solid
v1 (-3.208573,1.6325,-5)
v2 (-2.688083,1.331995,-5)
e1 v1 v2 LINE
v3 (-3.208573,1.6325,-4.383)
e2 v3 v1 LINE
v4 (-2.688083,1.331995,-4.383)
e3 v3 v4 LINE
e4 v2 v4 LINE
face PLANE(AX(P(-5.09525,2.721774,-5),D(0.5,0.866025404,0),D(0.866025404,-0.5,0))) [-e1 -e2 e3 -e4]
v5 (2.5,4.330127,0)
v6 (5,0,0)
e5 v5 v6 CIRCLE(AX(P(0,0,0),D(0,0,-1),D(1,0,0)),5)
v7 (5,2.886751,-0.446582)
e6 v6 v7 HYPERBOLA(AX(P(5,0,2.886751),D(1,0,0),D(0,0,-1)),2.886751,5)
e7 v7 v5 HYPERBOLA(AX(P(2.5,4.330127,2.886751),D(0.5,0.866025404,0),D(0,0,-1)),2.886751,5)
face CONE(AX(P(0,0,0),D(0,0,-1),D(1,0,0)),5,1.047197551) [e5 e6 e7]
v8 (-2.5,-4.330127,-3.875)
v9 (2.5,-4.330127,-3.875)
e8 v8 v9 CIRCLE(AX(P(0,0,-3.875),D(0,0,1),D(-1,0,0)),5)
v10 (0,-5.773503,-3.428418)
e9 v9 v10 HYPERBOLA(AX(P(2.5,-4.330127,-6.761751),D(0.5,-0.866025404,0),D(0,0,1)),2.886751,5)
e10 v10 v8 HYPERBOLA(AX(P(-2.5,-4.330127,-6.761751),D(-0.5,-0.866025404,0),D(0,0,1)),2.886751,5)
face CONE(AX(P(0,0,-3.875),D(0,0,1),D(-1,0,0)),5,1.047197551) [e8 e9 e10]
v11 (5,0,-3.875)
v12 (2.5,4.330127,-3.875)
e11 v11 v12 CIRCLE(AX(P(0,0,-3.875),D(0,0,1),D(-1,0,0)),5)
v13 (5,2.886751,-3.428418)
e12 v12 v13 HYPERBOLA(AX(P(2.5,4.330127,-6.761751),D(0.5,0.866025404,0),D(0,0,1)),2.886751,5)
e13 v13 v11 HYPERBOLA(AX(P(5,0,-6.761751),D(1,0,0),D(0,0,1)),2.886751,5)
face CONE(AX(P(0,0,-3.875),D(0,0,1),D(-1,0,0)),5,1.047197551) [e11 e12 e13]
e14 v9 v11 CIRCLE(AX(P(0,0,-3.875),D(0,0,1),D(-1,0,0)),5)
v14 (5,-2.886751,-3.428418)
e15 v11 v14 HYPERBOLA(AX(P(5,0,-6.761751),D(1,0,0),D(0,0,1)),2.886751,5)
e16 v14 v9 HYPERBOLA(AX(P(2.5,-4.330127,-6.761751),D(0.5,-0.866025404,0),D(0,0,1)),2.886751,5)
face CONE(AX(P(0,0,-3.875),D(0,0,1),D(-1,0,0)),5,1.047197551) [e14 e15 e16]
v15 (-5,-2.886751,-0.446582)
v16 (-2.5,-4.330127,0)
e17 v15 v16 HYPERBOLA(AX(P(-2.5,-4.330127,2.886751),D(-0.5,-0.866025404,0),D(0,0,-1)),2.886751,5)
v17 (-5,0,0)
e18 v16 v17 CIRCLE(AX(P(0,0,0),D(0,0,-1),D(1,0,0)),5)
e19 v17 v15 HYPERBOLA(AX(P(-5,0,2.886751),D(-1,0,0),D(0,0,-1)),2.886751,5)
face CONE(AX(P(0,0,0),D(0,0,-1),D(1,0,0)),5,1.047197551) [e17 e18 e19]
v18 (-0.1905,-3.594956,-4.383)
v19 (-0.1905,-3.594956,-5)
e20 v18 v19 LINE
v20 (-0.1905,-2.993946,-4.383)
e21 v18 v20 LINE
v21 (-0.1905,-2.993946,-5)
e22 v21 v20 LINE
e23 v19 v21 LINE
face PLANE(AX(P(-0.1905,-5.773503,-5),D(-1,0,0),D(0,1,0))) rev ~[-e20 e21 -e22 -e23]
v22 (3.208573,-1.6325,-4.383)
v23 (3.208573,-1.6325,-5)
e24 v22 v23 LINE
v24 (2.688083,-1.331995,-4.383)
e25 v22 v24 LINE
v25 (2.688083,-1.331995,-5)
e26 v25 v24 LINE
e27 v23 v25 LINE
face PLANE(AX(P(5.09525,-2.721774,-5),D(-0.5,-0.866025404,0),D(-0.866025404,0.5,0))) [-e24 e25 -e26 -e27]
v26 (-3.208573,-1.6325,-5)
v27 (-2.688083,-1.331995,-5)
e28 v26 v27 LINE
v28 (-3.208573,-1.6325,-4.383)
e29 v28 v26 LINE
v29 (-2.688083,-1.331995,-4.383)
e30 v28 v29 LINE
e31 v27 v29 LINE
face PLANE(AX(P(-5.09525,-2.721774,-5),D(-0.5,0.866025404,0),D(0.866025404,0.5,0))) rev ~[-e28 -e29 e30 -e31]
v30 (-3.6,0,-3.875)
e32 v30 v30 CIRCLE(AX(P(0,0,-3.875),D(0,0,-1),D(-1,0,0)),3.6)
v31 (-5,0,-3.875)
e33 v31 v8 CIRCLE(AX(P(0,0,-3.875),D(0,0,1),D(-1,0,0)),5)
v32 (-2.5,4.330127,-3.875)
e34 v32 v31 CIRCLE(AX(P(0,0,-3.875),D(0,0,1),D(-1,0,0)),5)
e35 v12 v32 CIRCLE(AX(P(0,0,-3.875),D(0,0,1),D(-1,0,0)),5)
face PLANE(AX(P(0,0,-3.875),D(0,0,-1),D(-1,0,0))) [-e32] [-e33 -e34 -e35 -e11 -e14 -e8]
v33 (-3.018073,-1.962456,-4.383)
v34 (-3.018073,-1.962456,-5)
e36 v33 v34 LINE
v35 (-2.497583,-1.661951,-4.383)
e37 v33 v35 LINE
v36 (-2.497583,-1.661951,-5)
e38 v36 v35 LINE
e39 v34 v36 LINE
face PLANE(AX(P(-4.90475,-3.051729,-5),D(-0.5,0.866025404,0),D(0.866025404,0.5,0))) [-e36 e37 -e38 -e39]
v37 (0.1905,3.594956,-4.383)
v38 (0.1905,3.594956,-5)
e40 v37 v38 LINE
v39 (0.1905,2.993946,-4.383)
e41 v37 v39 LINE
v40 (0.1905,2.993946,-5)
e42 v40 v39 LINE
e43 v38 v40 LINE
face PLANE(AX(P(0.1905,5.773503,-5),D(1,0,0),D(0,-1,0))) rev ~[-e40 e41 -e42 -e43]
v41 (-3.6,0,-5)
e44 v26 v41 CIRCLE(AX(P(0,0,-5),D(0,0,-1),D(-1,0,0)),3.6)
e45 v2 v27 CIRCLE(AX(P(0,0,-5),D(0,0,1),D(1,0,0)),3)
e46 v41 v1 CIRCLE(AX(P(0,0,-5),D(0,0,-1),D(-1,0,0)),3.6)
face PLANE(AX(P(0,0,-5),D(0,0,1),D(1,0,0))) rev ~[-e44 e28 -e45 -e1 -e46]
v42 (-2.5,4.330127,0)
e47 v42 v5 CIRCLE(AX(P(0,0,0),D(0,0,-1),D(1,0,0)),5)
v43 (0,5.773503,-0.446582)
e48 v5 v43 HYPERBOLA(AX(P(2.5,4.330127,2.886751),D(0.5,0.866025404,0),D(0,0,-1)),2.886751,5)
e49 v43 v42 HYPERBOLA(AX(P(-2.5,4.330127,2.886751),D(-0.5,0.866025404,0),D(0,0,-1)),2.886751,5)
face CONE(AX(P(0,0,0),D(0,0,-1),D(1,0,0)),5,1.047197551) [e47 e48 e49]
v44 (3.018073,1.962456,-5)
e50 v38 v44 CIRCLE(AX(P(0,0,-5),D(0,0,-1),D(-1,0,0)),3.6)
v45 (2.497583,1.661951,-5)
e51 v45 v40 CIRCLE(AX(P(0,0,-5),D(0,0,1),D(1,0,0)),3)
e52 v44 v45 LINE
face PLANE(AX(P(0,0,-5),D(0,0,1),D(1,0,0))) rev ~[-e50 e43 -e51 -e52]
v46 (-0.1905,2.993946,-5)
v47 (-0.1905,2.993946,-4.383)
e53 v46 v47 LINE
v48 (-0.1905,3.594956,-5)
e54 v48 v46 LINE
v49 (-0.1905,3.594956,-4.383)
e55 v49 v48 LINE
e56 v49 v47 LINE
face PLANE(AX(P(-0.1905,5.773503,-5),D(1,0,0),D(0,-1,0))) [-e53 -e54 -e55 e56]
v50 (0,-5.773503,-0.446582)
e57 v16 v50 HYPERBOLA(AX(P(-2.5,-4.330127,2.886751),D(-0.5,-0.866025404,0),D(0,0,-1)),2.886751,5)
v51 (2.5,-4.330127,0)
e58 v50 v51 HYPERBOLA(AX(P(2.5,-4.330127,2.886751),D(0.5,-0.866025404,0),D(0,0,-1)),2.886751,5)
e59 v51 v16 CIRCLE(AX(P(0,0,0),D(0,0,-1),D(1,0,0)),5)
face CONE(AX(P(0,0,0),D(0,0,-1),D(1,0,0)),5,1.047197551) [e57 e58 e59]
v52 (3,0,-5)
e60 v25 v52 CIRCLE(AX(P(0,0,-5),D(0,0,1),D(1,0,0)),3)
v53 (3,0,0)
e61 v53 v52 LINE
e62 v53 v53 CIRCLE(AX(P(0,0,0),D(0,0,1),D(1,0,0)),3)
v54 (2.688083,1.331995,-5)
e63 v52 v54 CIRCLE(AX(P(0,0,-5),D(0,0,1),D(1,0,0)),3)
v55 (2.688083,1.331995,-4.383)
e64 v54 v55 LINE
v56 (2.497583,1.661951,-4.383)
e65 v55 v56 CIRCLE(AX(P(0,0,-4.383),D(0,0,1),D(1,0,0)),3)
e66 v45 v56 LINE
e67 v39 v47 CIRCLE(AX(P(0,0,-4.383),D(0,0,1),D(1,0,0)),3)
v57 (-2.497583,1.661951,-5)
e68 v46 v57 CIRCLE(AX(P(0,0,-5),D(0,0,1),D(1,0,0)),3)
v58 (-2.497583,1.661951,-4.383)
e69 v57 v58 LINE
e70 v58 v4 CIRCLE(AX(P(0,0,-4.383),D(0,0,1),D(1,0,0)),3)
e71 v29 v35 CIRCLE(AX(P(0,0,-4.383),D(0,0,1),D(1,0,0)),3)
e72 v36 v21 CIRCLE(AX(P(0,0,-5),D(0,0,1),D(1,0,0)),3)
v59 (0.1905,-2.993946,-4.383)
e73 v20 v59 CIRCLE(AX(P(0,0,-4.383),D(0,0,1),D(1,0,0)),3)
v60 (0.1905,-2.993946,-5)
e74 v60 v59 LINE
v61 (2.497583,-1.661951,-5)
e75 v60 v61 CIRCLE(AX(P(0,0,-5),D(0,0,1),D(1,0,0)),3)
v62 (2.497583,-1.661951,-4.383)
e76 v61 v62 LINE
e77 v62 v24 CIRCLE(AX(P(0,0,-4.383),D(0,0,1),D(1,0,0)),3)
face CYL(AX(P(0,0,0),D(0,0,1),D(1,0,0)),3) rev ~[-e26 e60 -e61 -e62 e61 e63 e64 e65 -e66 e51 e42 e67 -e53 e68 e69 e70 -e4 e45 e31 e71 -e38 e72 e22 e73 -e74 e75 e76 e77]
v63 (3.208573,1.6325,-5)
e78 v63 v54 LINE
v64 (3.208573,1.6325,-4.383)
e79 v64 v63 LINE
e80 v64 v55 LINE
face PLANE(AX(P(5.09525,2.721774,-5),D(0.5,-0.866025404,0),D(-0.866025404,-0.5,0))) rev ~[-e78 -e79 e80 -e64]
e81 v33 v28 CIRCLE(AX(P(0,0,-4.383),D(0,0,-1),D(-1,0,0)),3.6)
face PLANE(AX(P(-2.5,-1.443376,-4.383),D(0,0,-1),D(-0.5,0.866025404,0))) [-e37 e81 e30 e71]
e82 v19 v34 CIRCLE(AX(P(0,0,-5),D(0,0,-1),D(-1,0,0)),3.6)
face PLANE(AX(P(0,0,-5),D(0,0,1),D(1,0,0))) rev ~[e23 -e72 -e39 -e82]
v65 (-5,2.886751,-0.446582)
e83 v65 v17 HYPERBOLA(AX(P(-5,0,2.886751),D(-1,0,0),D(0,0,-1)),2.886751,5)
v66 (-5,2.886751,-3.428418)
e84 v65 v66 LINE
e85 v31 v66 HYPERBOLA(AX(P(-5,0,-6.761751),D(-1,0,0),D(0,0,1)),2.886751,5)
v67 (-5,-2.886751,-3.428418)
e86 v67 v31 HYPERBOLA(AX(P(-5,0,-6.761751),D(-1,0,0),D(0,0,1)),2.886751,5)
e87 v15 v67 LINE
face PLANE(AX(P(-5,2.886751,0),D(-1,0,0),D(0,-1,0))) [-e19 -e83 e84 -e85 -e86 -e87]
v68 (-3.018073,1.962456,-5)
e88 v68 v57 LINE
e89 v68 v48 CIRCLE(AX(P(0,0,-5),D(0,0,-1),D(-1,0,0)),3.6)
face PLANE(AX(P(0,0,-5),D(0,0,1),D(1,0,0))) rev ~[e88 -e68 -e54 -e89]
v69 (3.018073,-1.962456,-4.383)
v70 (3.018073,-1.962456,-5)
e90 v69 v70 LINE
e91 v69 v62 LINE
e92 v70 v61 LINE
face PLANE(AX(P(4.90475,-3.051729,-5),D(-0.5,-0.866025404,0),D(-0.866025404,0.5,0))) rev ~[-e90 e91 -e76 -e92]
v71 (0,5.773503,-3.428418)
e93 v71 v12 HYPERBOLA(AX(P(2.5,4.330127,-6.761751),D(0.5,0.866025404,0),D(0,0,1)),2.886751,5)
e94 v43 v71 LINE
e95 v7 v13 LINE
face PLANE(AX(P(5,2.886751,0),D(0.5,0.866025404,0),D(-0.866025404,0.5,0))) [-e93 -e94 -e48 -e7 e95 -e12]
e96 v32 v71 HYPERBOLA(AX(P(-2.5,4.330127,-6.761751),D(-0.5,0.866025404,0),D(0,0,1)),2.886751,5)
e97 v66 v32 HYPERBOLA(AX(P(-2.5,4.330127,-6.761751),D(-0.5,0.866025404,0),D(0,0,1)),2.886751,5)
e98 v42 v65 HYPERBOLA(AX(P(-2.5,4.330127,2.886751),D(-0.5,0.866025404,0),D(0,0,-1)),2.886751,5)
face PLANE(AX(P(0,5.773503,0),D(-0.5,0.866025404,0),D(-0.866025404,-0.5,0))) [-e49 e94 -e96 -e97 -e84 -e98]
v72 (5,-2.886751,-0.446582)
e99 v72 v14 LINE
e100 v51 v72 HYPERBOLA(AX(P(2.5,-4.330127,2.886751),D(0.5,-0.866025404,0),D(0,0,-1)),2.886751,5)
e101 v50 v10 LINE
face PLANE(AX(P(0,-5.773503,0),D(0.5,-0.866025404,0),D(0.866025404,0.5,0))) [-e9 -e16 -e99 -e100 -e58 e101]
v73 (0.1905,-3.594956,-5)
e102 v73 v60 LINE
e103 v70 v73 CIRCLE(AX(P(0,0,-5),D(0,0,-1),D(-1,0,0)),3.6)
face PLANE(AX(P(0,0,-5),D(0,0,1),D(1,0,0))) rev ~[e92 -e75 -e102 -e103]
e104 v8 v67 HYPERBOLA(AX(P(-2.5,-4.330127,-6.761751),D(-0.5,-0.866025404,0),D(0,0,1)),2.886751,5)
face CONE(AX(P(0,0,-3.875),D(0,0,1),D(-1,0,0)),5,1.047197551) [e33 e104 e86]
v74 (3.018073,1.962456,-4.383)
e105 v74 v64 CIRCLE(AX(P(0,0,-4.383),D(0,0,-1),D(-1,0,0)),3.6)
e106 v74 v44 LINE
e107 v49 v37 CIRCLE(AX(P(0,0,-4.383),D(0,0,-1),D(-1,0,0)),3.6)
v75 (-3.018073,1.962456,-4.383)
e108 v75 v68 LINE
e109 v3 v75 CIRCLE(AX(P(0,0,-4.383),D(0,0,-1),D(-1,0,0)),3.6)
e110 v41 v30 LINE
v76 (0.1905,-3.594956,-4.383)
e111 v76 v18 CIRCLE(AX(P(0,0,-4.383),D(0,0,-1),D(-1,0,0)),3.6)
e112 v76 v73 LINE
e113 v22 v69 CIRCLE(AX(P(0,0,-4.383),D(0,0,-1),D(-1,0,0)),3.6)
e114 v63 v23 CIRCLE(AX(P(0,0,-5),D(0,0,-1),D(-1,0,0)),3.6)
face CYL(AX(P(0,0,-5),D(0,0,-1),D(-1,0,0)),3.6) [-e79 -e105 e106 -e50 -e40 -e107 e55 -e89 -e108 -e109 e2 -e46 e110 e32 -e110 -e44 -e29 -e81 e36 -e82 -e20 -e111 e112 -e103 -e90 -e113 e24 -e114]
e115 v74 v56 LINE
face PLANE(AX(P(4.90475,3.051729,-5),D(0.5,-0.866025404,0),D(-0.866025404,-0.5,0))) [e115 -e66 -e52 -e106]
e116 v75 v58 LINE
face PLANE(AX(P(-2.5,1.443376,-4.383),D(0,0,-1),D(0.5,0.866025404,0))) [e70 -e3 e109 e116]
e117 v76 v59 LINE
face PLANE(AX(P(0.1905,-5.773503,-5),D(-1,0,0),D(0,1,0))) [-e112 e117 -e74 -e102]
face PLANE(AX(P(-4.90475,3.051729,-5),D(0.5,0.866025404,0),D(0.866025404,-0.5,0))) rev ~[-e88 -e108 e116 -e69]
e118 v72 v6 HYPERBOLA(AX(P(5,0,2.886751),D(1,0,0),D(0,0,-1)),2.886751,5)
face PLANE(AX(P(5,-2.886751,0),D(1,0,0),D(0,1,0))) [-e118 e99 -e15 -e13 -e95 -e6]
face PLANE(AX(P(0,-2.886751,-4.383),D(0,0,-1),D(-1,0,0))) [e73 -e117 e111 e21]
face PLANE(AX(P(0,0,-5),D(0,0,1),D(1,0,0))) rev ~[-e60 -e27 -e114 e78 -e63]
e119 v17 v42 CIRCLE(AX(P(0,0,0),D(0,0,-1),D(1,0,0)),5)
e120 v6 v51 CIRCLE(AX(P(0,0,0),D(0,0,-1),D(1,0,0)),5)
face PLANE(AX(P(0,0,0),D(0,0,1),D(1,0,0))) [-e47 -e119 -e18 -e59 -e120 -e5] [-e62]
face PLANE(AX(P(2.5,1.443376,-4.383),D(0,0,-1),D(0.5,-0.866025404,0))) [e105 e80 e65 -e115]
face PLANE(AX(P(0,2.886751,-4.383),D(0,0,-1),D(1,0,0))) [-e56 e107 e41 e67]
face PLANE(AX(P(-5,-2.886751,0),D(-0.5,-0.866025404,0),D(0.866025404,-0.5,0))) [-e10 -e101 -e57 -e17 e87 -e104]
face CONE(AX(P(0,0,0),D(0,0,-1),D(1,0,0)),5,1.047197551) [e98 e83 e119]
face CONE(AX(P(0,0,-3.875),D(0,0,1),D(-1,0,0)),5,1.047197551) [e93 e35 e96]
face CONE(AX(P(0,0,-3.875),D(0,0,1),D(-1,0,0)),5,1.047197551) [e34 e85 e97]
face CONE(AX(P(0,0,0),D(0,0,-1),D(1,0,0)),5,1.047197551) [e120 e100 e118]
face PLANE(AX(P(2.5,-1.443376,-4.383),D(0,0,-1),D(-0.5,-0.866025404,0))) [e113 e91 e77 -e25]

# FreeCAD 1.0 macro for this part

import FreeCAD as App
import Part
import Sketcher

V = App.Vector
Q = App.Units.Quantity

doc = App.newDocument("Part")
params = doc.addObject("Spreadsheet::Sheet", "Params")
for row, (alias, value) in enumerate([
    ("pad1_length", "5 mm"),
    ("sketch2_diameter", "10 mm"),
    ("sketch2_width", "36 mm"),
    ("pocket1_length", "6 mm"),
    ("pocket1_taper", "60 deg"),
    ("sketch3_diameter", "6 mm"),
    ("sketch4_diameter", "7.2 mm"),
    ("pocket3_length", "1.125 mm"),
    ("pocket4_length", "0.617 mm"),
    ("sketch6_diameter", "10 mm"),
    ("sketch6_height", "33.65 mm"),
    ("pocket5_length", "4.875 mm"),
    ("pocket5_taper", "60 deg"),
], start=1):
    params.set(f"A{row}", alias)
    params.set(f"B{row}", "=" + value)
    params.setAlias(f"B{row}", alias)

body = doc.addObject("PartDesign::Body", "Body")

# Sketch on XY plane
sketch1 = doc.addObject("Sketcher::SketchObject", "Sketch")
body.addObject(sketch1)
sketch1.AttachmentSupport = (doc.XY_Plane, [""])
sketch1.MapMode = "FlatFace"
sketch1.addGeometry(Part.LineSegment(V(0, 6, 0), V(-5, 3, 0)), False)
sketch1.addGeometry(Part.LineSegment(V(-5, 3, 0), V(-5, -3, 0)), False)
sketch1.addGeometry(Part.LineSegment(V(-5, -3, 0), V(0, -6, 0)), False)
sketch1.addGeometry(Part.LineSegment(V(0, -6, 0), V(5, -3, 0)), False)
sketch1.addGeometry(Part.LineSegment(V(5, -3, 0), V(5, 3, 0)), False)
sketch1.addGeometry(Part.LineSegment(V(5, 3, 0), V(0, 6, 0)), False)
sketch1.addConstraint(Sketcher.Constraint("Coincident", 0, 2, 1, 1))
sketch1.addConstraint(Sketcher.Constraint("Coincident", 1, 2, 2, 1))
sketch1.addConstraint(Sketcher.Constraint("Coincident", 2, 2, 3, 1))
sketch1.addConstraint(Sketcher.Constraint("Coincident", 3, 2, 4, 1))
sketch1.addConstraint(Sketcher.Constraint("Coincident", 4, 2, 5, 1))
sketch1.addConstraint(Sketcher.Constraint("Coincident", 5, 2, 0, 1))
sketch1.addConstraint(Sketcher.Constraint("Vertical", 1))
sketch1.addConstraint(Sketcher.Constraint("Vertical", 4))
sketch1.addConstraint(Sketcher.Constraint("Symmetric", 0, 2, 3, 2, -1, 1))
sketch1.addConstraint(Sketcher.Constraint("Symmetric", 2, 2, 5, 2, -1, 1))
sketch1.addConstraint(Sketcher.Constraint("PointOnObject", 2, 2, -2))
sketch1.addConstraint(Sketcher.Constraint("Parallel", 2, 5))
sketch1.addConstraint(Sketcher.Constraint("Horizontal", 1, 2, 3, 2))
sketch1.addConstraint(Sketcher.Constraint("Angle", 0, Q("-150 deg")))
sketch1.addConstraint(Sketcher.Constraint("DistanceX", 0, 2, -1, 1, 5.0))
sketch1.addConstraint(Sketcher.Constraint("DistanceY", 1, 2, 1, 1, 5.773503))
pad1 = doc.addObject("PartDesign::Pad", "Pad")
body.addObject(pad1)
pad1.Profile = sketch1
pad1.setExpression("Length", "Params.pad1_length")
pad1.Reversed = True

# Sketch on XY plane
sketch2 = doc.addObject("Sketcher::SketchObject", "Sketch001")
body.addObject(sketch2)
sketch2.AttachmentSupport = (doc.XY_Plane, [""])
sketch2.MapMode = "FlatFace"
sketch2.addGeometry(Part.LineSegment(V(-18, 19, 0), V(-18, -19, 0)), False)
sketch2.addGeometry(Part.LineSegment(V(-18, -19, 0), V(18, -19, 0)), False)
sketch2.addGeometry(Part.LineSegment(V(18, -19, 0), V(18, 19, 0)), False)
sketch2.addGeometry(Part.LineSegment(V(18, 19, 0), V(-18, 19, 0)), False)
sketch2.addGeometry(Part.Circle(V(0, 0, 0), V(0, 0, 1), 5), False)
sketch2.addConstraint(Sketcher.Constraint("Coincident", 0, 2, 1, 1))
sketch2.addConstraint(Sketcher.Constraint("Coincident", 1, 2, 2, 1))
sketch2.addConstraint(Sketcher.Constraint("Coincident", 2, 2, 3, 1))
sketch2.addConstraint(Sketcher.Constraint("Coincident", 3, 2, 0, 1))
sketch2.addConstraint(Sketcher.Constraint("Vertical", 0))
sketch2.addConstraint(Sketcher.Constraint("Horizontal", 1))
sketch2.addConstraint(Sketcher.Constraint("Vertical", 2))
sketch2.addConstraint(Sketcher.Constraint("Horizontal", 3))
sketch2.addConstraint(Sketcher.Constraint("Coincident", 4, 3, -1, 1))
sketch2.addConstraint(Sketcher.Constraint("Symmetric", 0, 2, 2, 2, -1, 1))
sketch2.addConstraint(Sketcher.Constraint("Diameter", 4, 10.0))
sketch2.addConstraint(Sketcher.Constraint("DistanceX", 1, 1, 1, 2, 36.0))
sketch2.addConstraint(Sketcher.Constraint("DistanceY", 0, 2, 0, 1, 37.548))
sketch2.setExpression("Constraints[10]", "Params.sketch2_diameter")
sketch2.setExpression("Constraints[11]", "Params.sketch2_width")
pocket1 = doc.addObject("PartDesign::Pocket", "Pocket")
body.addObject(pocket1)
pocket1.Profile = sketch2
pocket1.setExpression("Length", "Params.pocket1_length")
pocket1.setExpression("TaperAngle", "Params.pocket1_taper")

# Sketch on XY plane
sketch3 = doc.addObject("Sketcher::SketchObject", "Sketch002")
body.addObject(sketch3)
sketch3.AttachmentSupport = (doc.XY_Plane, [""])
sketch3.MapMode = "FlatFace"
sketch3.addGeometry(Part.Circle(V(0, 0, 0), V(0, 0, 1), 3), False)
sketch3.addConstraint(Sketcher.Constraint("Coincident", 0, 3, -1, 1))
sketch3.addConstraint(Sketcher.Constraint("Diameter", 0, 6.0))
sketch3.setExpression("Constraints[1]", "Params.sketch3_diameter")
pocket2 = doc.addObject("PartDesign::Pocket", "Pocket001")
body.addObject(pocket2)
pocket2.Profile = sketch3
pocket2.Type = "ThroughAll"

# Sketch on XY plane
sketch4 = doc.addObject("Sketcher::SketchObject", "Sketch003")
body.addObject(sketch4)
sketch4.AttachmentSupport = (doc.XY_Plane, [""])
sketch4.MapMode = "FlatFace"
sketch4.AttachmentOffset = App.Placement(V(0, 0, -5), App.Rotation())
sketch4.addGeometry(Part.LineSegment(V(7.6, 8.4, 0), V(7.6, -8.4, 0)), False)
sketch4.addGeometry(Part.LineSegment(V(7.6, -8.4, 0), V(-7.6, -8.4, 0)), False)
sketch4.addGeometry(Part.LineSegment(V(-7.6, -8.4, 0), V(-7.6, 8.4, 0)), False)
sketch4.addGeometry(Part.LineSegment(V(-7.6, 8.4, 0), V(7.6, 8.4, 0)), False)
sketch4.addGeometry(Part.Circle(V(0, 0, 0), V(0, 0, 1), 3.6), False)
sketch4.addConstraint(Sketcher.Constraint("Coincident", 0, 2, 1, 1))
sketch4.addConstraint(Sketcher.Constraint("Coincident", 1, 2, 2, 1))
sketch4.addConstraint(Sketcher.Constraint("Coincident", 2, 2, 3, 1))
sketch4.addConstraint(Sketcher.Constraint("Coincident", 3, 2, 0, 1))
sketch4.addConstraint(Sketcher.Constraint("Vertical", 0))
sketch4.addConstraint(Sketcher.Constraint("Horizontal", 1))
sketch4.addConstraint(Sketcher.Constraint("Vertical", 2))
sketch4.addConstraint(Sketcher.Constraint("Horizontal", 3))
sketch4.addConstraint(Sketcher.Constraint("Coincident", 4, 3, -1, 1))
sketch4.addConstraint(Sketcher.Constraint("Symmetric", 0, 2, 2, 2, -1, 1))
sketch4.addConstraint(Sketcher.Constraint("Diameter", 4, 7.2))
sketch4.addConstraint(Sketcher.Constraint("DistanceX", 1, 2, 1, 1, 15.214))
sketch4.addConstraint(Sketcher.Constraint("DistanceY", 0, 2, 0, 1, 16.762))
sketch4.setExpression("Constraints[10]", "Params.sketch4_diameter")
pocket3 = doc.addObject("PartDesign::Pocket", "Pocket002")
body.addObject(pocket3)
pocket3.Profile = sketch4
pocket3.setExpression("Length", "Params.pocket3_length")
pocket3.Reversed = True

# Sketch on XY plane
sketch5 = doc.addObject("Sketcher::SketchObject", "Sketch004")
body.addObject(sketch5)
sketch5.AttachmentSupport = (doc.XY_Plane, [""])
sketch5.MapMode = "FlatFace"
sketch5.AttachmentOffset = App.Placement(V(0, 0, -5), App.Rotation())
sketch5.addGeometry(Part.LineSegment(V(0.19, 0, 0), V(0.19, -5.77, 0)), False)
sketch5.addGeometry(Part.LineSegment(V(0.19, -5.77, 0), V(-0.19, -5.77, 0)), False)
sketch5.addGeometry(Part.LineSegment(V(-0.19, -5.77, 0), V(-0.19, 0, 0)), False)
sketch5.addGeometry(Part.LineSegment(V(-0.19, 0, 0), V(0.19, 0, 0)), False)
sketch5.addConstraint(Sketcher.Constraint("Coincident", 0, 2, 1, 1))
sketch5.addConstraint(Sketcher.Constraint("Coincident", 1, 2, 2, 1))
sketch5.addConstraint(Sketcher.Constraint("Coincident", 2, 2, 3, 1))
sketch5.addConstraint(Sketcher.Constraint("Coincident", 3, 2, 0, 1))
sketch5.addConstraint(Sketcher.Constraint("Vertical", 0))
sketch5.addConstraint(Sketcher.Constraint("Horizontal", 1))
sketch5.addConstraint(Sketcher.Constraint("Vertical", 2))
sketch5.addConstraint(Sketcher.Constraint("Horizontal", 3))
sketch5.addConstraint(Sketcher.Constraint("Symmetric", 2, 2, 3, 2, -1, 1))
sketch5.addConstraint(Sketcher.Constraint("DistanceX", 1, 2, 1, 1, 0.381))
sketch5.addConstraint(Sketcher.Constraint("DistanceY", 0, 2, 0, 1, 5.773503))
pocket4 = doc.addObject("PartDesign::Pocket", "Pocket003")
body.addObject(pocket4)
pocket4.Profile = sketch5
pocket4.setExpression("Length", "Params.pocket4_length")
pocket4.Reversed = True
doc.recompute()

polarpattern = doc.addObject("PartDesign::PolarPattern", "PolarPattern")
body.addObject(polarpattern)
polarpattern.Originals = [pocket4]
polarpattern.Axis = (doc.Z_Axis, [""])
polarpattern.Angle = 360
polarpattern.Occurrences = 6
body.Tip = polarpattern

# Sketch on XY plane
sketch6 = doc.addObject("Sketcher::SketchObject", "Sketch005")
body.addObject(sketch6)
sketch6.AttachmentSupport = (doc.XY_Plane, [""])
sketch6.MapMode = "FlatFace"
sketch6.AttachmentOffset = App.Placement(V(0, 0, -3.875), App.Rotation())
sketch6.addGeometry(Part.LineSegment(V(16, 17, 0), V(16, -17, 0)), False)
sketch6.addGeometry(Part.LineSegment(V(16, -17, 0), V(-16, -17, 0)), False)
sketch6.addGeometry(Part.LineSegment(V(-16, -17, 0), V(-16, 17, 0)), False)
sketch6.addGeometry(Part.LineSegment(V(-16, 17, 0), V(16, 17, 0)), False)
sketch6.addGeometry(Part.Circle(V(0, 0, 0), V(0, 0, 1), 5), False)
sketch6.addConstraint(Sketcher.Constraint("Coincident", 0, 2, 1, 1))
sketch6.addConstraint(Sketcher.Constraint("Coincident", 1, 2, 2, 1))
sketch6.addConstraint(Sketcher.Constraint("Coincident", 2, 2, 3, 1))
sketch6.addConstraint(Sketcher.Constraint("Coincident", 3, 2, 0, 1))
sketch6.addConstraint(Sketcher.Constraint("Vertical", 0))
sketch6.addConstraint(Sketcher.Constraint("Horizontal", 1))
sketch6.addConstraint(Sketcher.Constraint("Vertical", 2))
sketch6.addConstraint(Sketcher.Constraint("Horizontal", 3))
sketch6.addConstraint(Sketcher.Constraint("Coincident", 4, 3, -1, 1))
sketch6.addConstraint(Sketcher.Constraint("Symmetric", 0, 2, 2, 2, -1, 1))
sketch6.addConstraint(Sketcher.Constraint("Diameter", 4, 10.0))
sketch6.addConstraint(Sketcher.Constraint("DistanceY", 0, 2, 0, 1, 33.65))
sketch6.addConstraint(Sketcher.Constraint("DistanceX", 1, 2, 1, 1, 32.102))
sketch6.setExpression("Constraints[10]", "Params.sketch6_diameter")
sketch6.setExpression("Constraints[11]", "Params.sketch6_height")
pocket5 = doc.addObject("PartDesign::Pocket", "Pocket004")
body.addObject(pocket5)
pocket5.Profile = sketch6
pocket5.setExpression("Length", "Params.pocket5_length")
pocket5.Reversed = True
pocket5.setExpression("TaperAngle", "Params.pocket5_taper")

doc.recompute()
